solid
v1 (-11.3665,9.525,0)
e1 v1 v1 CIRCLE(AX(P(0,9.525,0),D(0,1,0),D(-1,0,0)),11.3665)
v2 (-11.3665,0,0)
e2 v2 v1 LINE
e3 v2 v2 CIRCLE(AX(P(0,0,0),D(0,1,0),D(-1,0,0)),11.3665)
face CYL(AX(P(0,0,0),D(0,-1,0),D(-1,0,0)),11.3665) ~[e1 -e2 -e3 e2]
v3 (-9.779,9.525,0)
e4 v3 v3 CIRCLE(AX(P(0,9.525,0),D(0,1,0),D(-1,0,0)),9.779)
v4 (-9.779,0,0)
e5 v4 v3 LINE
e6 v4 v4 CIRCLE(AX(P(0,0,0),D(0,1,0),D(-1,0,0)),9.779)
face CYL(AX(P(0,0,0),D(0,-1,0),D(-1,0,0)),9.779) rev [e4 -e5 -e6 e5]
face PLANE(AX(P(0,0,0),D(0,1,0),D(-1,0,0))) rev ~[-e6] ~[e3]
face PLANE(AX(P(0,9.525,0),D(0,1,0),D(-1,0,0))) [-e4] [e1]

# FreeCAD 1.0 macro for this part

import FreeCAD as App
import Part
import Sketcher
Q = App.Units.Quantity

doc = App.newDocument("Part")
body = doc.addObject("PartDesign::Body", "Body")

# Sketch on XZ plane
sketch1 = doc.addObject("Sketcher::SketchObject", "Sketch")
body.addObject(sketch1)
sketch1.AttachmentSupport = (doc.XZ_Plane, [""])
sketch1.MapMode = "FlatFace"
sketch1.addGeometry([
    Part.Circle(App.Vector(0, 0, 0), App.Vector(0, 0, 1), 11),
    Part.Circle(App.Vector(0, 0, 0), App.Vector(0, 0, 1), 10),
], False)
sketch1.addConstraint([
    Sketcher.Constraint("Coincident", 0, 3, -1, 1),
    Sketcher.Constraint("Coincident", 1, 3, -1, 1),
    Sketcher.Constraint("Diameter", 1, Q("0.77 in")),
    Sketcher.Constraint("Diameter", 0, Q("0.895 in")),
])
pad1 = doc.addObject("PartDesign::Pad", "Pad")
body.addObject(pad1)
pad1.Profile = sketch1
pad1.Length = Q("0.375 in")
pad1.Reversed = True

doc.recompute()
